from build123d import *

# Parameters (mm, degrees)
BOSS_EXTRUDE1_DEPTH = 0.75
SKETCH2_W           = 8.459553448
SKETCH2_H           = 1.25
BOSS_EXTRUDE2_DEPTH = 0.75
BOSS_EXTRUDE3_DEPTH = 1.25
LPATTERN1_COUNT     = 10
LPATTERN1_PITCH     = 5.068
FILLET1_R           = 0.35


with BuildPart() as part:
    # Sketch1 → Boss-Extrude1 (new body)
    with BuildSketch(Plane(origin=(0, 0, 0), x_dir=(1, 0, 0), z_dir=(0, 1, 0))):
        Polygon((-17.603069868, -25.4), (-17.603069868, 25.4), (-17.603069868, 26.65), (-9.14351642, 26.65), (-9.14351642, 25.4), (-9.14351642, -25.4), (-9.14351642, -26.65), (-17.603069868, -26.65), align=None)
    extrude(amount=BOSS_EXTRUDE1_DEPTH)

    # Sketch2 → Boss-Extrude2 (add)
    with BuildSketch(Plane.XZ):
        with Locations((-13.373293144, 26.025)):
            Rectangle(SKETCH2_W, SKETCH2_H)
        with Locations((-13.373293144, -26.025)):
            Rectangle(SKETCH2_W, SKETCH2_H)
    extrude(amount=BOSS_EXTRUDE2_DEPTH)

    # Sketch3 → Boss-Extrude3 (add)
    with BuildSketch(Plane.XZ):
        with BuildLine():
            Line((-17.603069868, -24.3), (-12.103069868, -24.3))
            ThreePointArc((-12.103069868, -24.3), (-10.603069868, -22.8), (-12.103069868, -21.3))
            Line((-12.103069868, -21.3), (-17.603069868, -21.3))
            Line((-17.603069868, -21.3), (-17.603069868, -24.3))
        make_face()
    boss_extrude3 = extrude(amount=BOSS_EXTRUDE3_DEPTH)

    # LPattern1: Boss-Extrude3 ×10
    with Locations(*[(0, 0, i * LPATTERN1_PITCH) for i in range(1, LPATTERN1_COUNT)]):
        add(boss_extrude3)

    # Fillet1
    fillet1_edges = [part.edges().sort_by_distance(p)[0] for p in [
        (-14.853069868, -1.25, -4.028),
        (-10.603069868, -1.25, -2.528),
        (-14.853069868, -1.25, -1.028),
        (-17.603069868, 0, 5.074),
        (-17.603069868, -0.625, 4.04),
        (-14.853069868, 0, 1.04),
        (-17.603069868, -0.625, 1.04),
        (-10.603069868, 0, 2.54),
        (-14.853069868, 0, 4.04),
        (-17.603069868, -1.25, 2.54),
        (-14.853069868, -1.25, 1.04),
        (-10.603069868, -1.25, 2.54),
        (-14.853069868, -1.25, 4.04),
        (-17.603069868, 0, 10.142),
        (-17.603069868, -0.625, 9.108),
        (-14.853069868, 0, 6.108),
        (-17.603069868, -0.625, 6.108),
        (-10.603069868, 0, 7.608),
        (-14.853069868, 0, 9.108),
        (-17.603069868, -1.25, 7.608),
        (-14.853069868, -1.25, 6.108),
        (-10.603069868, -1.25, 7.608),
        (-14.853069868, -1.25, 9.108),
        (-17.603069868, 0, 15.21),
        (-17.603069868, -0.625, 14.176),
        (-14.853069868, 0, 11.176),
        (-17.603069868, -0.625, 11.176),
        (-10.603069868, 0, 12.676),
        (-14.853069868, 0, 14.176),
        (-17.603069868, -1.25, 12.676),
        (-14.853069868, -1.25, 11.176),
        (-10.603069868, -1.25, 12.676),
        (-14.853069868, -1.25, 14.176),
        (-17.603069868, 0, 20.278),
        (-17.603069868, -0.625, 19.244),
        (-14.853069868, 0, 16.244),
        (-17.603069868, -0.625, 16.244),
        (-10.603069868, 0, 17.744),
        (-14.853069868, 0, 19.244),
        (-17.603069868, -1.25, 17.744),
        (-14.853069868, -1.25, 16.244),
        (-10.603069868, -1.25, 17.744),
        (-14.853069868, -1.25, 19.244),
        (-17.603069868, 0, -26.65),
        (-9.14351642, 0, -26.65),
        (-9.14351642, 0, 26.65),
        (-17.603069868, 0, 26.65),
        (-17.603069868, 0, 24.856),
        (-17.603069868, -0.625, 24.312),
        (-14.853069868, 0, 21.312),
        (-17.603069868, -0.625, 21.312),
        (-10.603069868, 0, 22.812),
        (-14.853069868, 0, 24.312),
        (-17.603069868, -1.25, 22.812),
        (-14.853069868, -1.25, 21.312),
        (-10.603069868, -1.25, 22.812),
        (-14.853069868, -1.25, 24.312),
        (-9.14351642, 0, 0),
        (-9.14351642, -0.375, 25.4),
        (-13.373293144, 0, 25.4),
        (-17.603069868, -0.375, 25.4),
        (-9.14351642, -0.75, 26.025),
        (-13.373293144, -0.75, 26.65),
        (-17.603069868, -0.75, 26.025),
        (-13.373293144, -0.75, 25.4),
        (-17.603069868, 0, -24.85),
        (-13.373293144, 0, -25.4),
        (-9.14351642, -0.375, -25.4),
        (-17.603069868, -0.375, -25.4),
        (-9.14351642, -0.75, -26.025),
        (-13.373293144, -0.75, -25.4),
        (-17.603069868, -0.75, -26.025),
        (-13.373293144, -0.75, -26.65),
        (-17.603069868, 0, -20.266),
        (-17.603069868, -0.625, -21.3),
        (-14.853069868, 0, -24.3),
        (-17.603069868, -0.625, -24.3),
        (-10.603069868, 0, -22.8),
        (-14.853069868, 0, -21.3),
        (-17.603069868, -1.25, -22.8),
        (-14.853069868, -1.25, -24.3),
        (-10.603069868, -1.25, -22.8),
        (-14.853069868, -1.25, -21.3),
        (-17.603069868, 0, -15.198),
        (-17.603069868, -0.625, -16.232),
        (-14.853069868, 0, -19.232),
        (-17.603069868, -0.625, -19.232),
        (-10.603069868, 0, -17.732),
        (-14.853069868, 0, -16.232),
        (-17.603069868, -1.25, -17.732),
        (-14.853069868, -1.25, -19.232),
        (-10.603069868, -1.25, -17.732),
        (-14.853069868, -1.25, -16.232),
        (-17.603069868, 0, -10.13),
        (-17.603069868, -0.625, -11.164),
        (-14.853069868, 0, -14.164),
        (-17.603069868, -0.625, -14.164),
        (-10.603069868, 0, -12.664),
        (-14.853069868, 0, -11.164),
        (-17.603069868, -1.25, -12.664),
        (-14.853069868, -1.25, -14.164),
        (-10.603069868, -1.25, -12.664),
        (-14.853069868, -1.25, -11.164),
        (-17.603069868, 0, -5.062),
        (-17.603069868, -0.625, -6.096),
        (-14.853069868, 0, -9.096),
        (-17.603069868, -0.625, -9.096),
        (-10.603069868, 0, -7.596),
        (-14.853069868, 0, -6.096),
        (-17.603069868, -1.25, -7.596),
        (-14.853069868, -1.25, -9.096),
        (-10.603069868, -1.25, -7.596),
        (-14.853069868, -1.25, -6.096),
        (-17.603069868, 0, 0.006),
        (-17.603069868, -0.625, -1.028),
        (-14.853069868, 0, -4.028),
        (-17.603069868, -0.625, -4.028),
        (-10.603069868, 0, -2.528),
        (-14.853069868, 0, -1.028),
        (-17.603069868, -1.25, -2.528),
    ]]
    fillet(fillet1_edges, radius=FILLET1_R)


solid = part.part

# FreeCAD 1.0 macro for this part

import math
import FreeCAD as App
import Part
import Sketcher
Q = App.Units.Quantity


def edges_at(feature, points):
    """Names of the edges that pass closest to the given points."""
    edges = feature.Shape.Edges
    near = lambda p: min(range(len(edges)), key=lambda i: edges[i].distToShape(Part.Vertex(*p))[0])
    return sorted({f"Edge{near(p) + 1}" for p in points})


def add_polygon(sketch, points):
    """Adds a closed chain of lines whose ends are joined by coincident constraints."""
    first, n = sketch.GeometryCount, len(points)
    for a, b in zip(points, points[1:] + points[:1]):
        sketch.addGeometry(Part.LineSegment(App.Vector(*a, 0), App.Vector(*b, 0)), False)
    for i in range(n):
        sketch.addConstraint(Sketcher.Constraint("Coincident", first + i, 2, first + (i + 1) % n, 1))

doc = App.newDocument("Part")
body = doc.addObject("PartDesign::Body", "Body")

# Sketch on XZ plane
sketch1 = body.newObject("Sketcher::SketchObject", "Sketch")
sketch1.AttachmentSupport = (doc.getObject("XZ_Plane"), [""])
sketch1.MapMode = "FlatFace"
add_polygon(sketch1, [(-18, -27), (-18, 27), (-9, 27), (-9, -27)])  # lines 0-3
sketch1.addConstraint(Sketcher.Constraint("Vertical", 0))
sketch1.addConstraint(Sketcher.Constraint("Horizontal", 1))
sketch1.addConstraint(Sketcher.Constraint("Vertical", 2))
sketch1.addConstraint(Sketcher.Constraint("Horizontal", 3))
sketch1.addConstraint(Sketcher.Constraint("DistanceY", 0, 1, 0, 2, Q("53.3 mm")))
sketch1.addConstraint(Sketcher.Constraint("DistanceY", -1, 1, 0, 2, Q("26.65 mm")))
sketch1.addConstraint(Sketcher.Constraint("DistanceX", 1, 1, 1, 2, Q("8.459553 mm")))
sketch1.addConstraint(Sketcher.Constraint("DistanceX", 0, 2, -1, 1, Q("17.60307 mm")))
pad1 = body.newObject("PartDesign::Pad", "Pad")
pad1.Profile = sketch1
pad1.Length = 0.75
pad1.Reversed = True

# Sketch on XZ plane
sketch2 = body.newObject("Sketcher::SketchObject", "Sketch001")
sketch2.AttachmentSupport = (doc.getObject("XZ_Plane"), [""])
sketch2.MapMode = "FlatFace"
add_polygon(sketch2, [(-17.6, 26.6), (-17.6, 25.4), (-9.1, 25.4), (-9.1, 26.6)])  # lines 0-3
add_polygon(sketch2, [(-17.6, -25.4), (-17.6, -26.6), (-9.1, -26.6), (-9.1, -25.4)])  # lines 4-7
sketch2.addConstraint(Sketcher.Constraint("Vertical", 0))
sketch2.addConstraint(Sketcher.Constraint("Horizontal", 1))
sketch2.addConstraint(Sketcher.Constraint("Vertical", 2))
sketch2.addConstraint(Sketcher.Constraint("Horizontal", 3))
sketch2.addConstraint(Sketcher.Constraint("Vertical", 4))
sketch2.addConstraint(Sketcher.Constraint("Horizontal", 5))
sketch2.addConstraint(Sketcher.Constraint("Vertical", 6))
sketch2.addConstraint(Sketcher.Constraint("Horizontal", 7))
sketch2.addConstraint(Sketcher.Constraint("Symmetric", 3, 2, 4, 2, -1))
sketch2.addConstraint(Sketcher.Constraint("Symmetric", 1, 2, 6, 2, -1))
sketch2.addConstraint(Sketcher.Constraint("DistanceY", 0, 2, 0, 1, Q("1.25 mm")))
sketch2.addConstraint(Sketcher.Constraint("DistanceY", -1, 1, 0, 2, Q("25.4 mm")))
sketch2.addConstraint(Sketcher.Constraint("DistanceX", 1, 1, 1, 2, Q("8.459553 mm")))
sketch2.addConstraint(Sketcher.Constraint("DistanceX", 0, 2, -1, 1, Q("17.60307 mm")))
pad2 = body.newObject("PartDesign::Pad", "Pad001")
pad2.Profile = sketch2
pad2.Length = 0.75

# Sketch on XZ plane
sketch3 = body.newObject("Sketcher::SketchObject", "Sketch002")
sketch3.AttachmentSupport = (doc.getObject("XZ_Plane"), [""])
sketch3.MapMode = "FlatFace"
sketch3.addGeometry(Part.LineSegment(App.Vector(-17.6, -24.3, 0), App.Vector(-12.1, -24.3, 0)), False)
sketch3.addGeometry(Part.ArcOfCircle(Part.Circle(App.Vector(-12.1, -22.8, 0), App.Vector(0, 0, 1), 1.5), math.radians(-90), math.radians(90)), False)
sketch3.addGeometry(Part.LineSegment(App.Vector(-12.1, -21.3, 0), App.Vector(-17.6, -21.3, 0)), False)
sketch3.addGeometry(Part.LineSegment(App.Vector(-17.6, -21.3, 0), App.Vector(-17.6, -24.3, 0)), False)
sketch3.addConstraint(Sketcher.Constraint("Tangent", 0, 2, 1, 1))
sketch3.addConstraint(Sketcher.Constraint("Tangent", 1, 2, 2, 1))
sketch3.addConstraint(Sketcher.Constraint("Coincident", 2, 2, 3, 1))
sketch3.addConstraint(Sketcher.Constraint("Coincident", 3, 2, 0, 1))
sketch3.addConstraint(Sketcher.Constraint("Horizontal", 0))
sketch3.addConstraint(Sketcher.Constraint("Horizontal", 2))
sketch3.addConstraint(Sketcher.Constraint("Vertical", 3))
sketch3.addConstraint(Sketcher.Constraint("Radius", 1, Q("1.5 mm")))
sketch3.addConstraint(Sketcher.Constraint("DistanceX", 0, 1, 0, 2, Q("5.5 mm")))
sketch3.addConstraint(Sketcher.Constraint("DistanceY", 1, 3, -1, 1, Q("22.8 mm")))
sketch3.addConstraint(Sketcher.Constraint("DistanceX", 1, 3, -1, 1, Q("12.10307 mm")))
pad3 = body.newObject("PartDesign::Pad", "Pad002")
pad3.Profile = sketch3
pad3.Length = 1.25
doc.recompute()

linearpattern = body.newObject("PartDesign::LinearPattern", "LinearPattern")
linearpattern.Originals = [pad3]
linearpattern.Direction = (doc.getObject("Z_Axis"), [""])
linearpattern.Mode = "offset"
linearpattern.Offset = 5.068
linearpattern.Occurrences = 10
body.Tip = linearpattern
doc.recompute()

fillet = body.newObject("PartDesign::Fillet", "Fillet")
fillet.Base = (linearpattern, edges_at(linearpattern, [
    (-14.853, -1.25, -4.028),
    (-10.603, -1.25, -2.528),
    (-14.853, -1.25, -1.028),
    (-17.603, 0, 5.074),
    (-17.603, -0.625, 4.04),
    (-14.853, 0, 1.04),
    (-17.603, -0.625, 1.04),
    (-10.603, 0, 2.54),
    (-14.853, 0, 4.04),
    (-17.603, -1.25, 2.54),
    (-14.853, -1.25, 1.04),
    (-10.603, -1.25, 2.54),
    (-14.853, -1.25, 4.04),
    (-17.603, 0, 10.142),
    (-17.603, -0.625, 9.108),
    (-14.853, 0, 6.108),
    (-17.603, -0.625, 6.108),
    (-10.603, 0, 7.608),
    (-14.853, 0, 9.108),
    (-17.603, -1.25, 7.608),
    (-14.853, -1.25, 6.108),
    (-10.603, -1.25, 7.608),
    (-14.853, -1.25, 9.108),
    (-17.603, 0, 15.21),
    (-17.603, -0.625, 14.176),
    (-14.853, 0, 11.176),
    (-17.603, -0.625, 11.176),
    (-10.603, 0, 12.676),
    (-14.853, 0, 14.176),
    (-17.603, -1.25, 12.676),
    (-14.853, -1.25, 11.176),
    (-10.603, -1.25, 12.676),
    (-14.853, -1.25, 14.176),
    (-17.603, 0, 20.278),
    (-17.603, -0.625, 19.244),
    (-14.853, 0, 16.244),
    (-17.603, -0.625, 16.244),
    (-10.603, 0, 17.744),
    (-14.853, 0, 19.244),
    (-17.603, -1.25, 17.744),
    (-14.853, -1.25, 16.244),
    (-10.603, -1.25, 17.744),
    (-14.853, -1.25, 19.244),
    (-17.603, 0, -26.65),
    (-9.144, 0, -26.65),
    (-9.144, 0, 26.65),
    (-17.603, 0, 26.65),
    (-17.603, 0, 24.856),
    (-17.603, -0.625, 24.312),
    (-14.853, 0, 21.312),
    (-17.603, -0.625, 21.312),
    (-10.603, 0, 22.812),
    (-14.853, 0, 24.312),
    (-17.603, -1.25, 22.812),
    (-14.853, -1.25, 21.312),
    (-10.603, -1.25, 22.812),
    (-14.853, -1.25, 24.312),
    (-9.144, 0, 0),
    (-9.144, -0.375, 25.4),
    (-13.373, 0, 25.4),
    (-17.603, -0.375, 25.4),
    (-9.144, -0.75, 26.025),
    (-13.373, -0.75, 26.65),
    (-17.603, -0.75, 26.025),
    (-13.373, -0.75, 25.4),
    (-17.603, 0, -24.85),
    (-13.373, 0, -25.4),
    (-9.144, -0.375, -25.4),
    (-17.603, -0.375, -25.4),
    (-9.144, -0.75, -26.025),
    (-13.373, -0.75, -25.4),
    (-17.603, -0.75, -26.025),
    (-13.373, -0.75, -26.65),
    (-17.603, 0, -20.266),
    (-17.603, -0.625, -21.3),
    (-14.853, 0, -24.3),
    (-17.603, -0.625, -24.3),
    (-10.603, 0, -22.8),
    (-14.853, 0, -21.3),
    (-17.603, -1.25, -22.8),
    (-14.853, -1.25, -24.3),
    (-10.603, -1.25, -22.8),
    (-14.853, -1.25, -21.3),
    (-17.603, 0, -15.198),
    (-17.603, -0.625, -16.232),
    (-14.853, 0, -19.232),
    (-17.603, -0.625, -19.232),
    (-10.603, 0, -17.732),
    (-14.853, 0, -16.232),
    (-17.603, -1.25, -17.732),
    (-14.853, -1.25, -19.232),
    (-10.603, -1.25, -17.732),
    (-14.853, -1.25, -16.232),
    (-17.603, 0, -10.13),
    (-17.603, -0.625, -11.164),
    (-14.853, 0, -14.164),
    (-17.603, -0.625, -14.164),
    (-10.603, 0, -12.664),
    (-14.853, 0, -11.164),
    (-17.603, -1.25, -12.664),
    (-14.853, -1.25, -14.164),
    (-10.603, -1.25, -12.664),
    (-14.853, -1.25, -11.164),
    (-17.603, 0, -5.062),
    (-17.603, -0.625, -6.096),
    (-14.853, 0, -9.096),
    (-17.603, -0.625, -9.096),
    (-10.603, 0, -7.596),
    (-14.853, 0, -6.096),
    (-17.603, -1.25, -7.596),
    (-14.853, -1.25, -9.096),
    (-10.603, -1.25, -7.596),
    (-14.853, -1.25, -6.096),
    (-17.603, 0, 0.006),
    (-17.603, -0.625, -1.028),
    (-14.853, 0, -4.028),
    (-17.603, -0.625, -4.028),
    (-10.603, 0, -2.528),
    (-14.853, 0, -1.028),
    (-17.603, -1.25, -2.528),
]))
fillet.Radius = 0.35

doc.recompute()
